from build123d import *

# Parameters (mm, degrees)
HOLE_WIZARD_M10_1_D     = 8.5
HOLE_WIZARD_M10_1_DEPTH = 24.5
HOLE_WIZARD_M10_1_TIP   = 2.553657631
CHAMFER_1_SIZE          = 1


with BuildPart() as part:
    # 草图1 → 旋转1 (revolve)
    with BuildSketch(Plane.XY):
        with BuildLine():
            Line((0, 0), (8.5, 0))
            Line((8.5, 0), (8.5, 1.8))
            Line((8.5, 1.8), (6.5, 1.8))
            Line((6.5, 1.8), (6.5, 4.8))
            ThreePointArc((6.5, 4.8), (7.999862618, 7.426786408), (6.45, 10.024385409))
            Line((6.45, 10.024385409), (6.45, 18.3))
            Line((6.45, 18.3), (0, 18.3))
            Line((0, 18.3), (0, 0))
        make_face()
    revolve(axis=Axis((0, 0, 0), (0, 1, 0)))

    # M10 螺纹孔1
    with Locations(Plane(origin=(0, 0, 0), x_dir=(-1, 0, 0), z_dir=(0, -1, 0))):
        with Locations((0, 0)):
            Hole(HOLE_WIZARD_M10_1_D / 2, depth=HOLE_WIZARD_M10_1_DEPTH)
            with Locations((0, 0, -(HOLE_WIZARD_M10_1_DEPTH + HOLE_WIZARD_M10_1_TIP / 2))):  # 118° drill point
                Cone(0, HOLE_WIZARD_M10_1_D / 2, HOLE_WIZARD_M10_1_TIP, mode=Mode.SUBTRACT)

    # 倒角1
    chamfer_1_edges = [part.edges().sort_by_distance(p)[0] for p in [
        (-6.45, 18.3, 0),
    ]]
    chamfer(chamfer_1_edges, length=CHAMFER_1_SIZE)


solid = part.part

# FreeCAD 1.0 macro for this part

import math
import FreeCAD as App
import Part
import Sketcher


def edges_at(feature, points):
    """Names of the edges that pass closest to the given points."""
    edges = feature.Shape.Edges
    near = lambda p: min(range(len(edges)), key=lambda i: edges[i].distToShape(Part.Vertex(*p))[0])
    return sorted({f"Edge{near(p) + 1}" for p in points})

doc = App.newDocument("Part")
params = doc.addObject("Spreadsheet::Sheet", "Params")
for row, (alias, value) in enumerate([
    ("sketch1_radius", "3 mm"),
    ("sketch1_width", "2 mm"),
    ("sketch1_height", "3 mm"),
    ("sketch1_width2", "8.5 mm"),
    ("sketch1_height2", "1.8 mm"),
    ("revolution_angle", "360 deg"),
    ("sketch2_diameter", "8.5 mm"),
    ("hole_diameter", "8.5 mm"),
    ("hole_depth", "24.5 mm"),
    ("chamfer_size", "1 mm"),
], start=1):
    params.set(f"A{row}", alias)
    params.set(f"B{row}", "=" + value)
    params.setAlias(f"B{row}", alias)

body = doc.addObject("PartDesign::Body", "Body")

sketch1 = body.newObject("Sketcher::SketchObject", "Sketch")
sketch1.AttachmentSupport = (doc.getObject("XY_Plane"), [""])
sketch1.MapMode = "FlatFace"
sketch1.addGeometry(Part.LineSegment(App.Vector(0, 0, 0), App.Vector(8.5, 0, 0)), False)
sketch1.addGeometry(Part.LineSegment(App.Vector(8.5, 0, 0), App.Vector(8.5, 1.8, 0)), False)
sketch1.addGeometry(Part.LineSegment(App.Vector(8.5, 1.8, 0), App.Vector(6.5, 1.8, 0)), False)
sketch1.addGeometry(Part.LineSegment(App.Vector(6.5, 1.8, 0), App.Vector(6.5, 4.8, 0)), False)
sketch1.addGeometry(Part.ArcOfCircle(Part.Circle(App.Vector(5, 7.398076, 0), App.Vector(0, 0, 1), 3), math.radians(-60), math.radians(61.096665)), False)
sketch1.addGeometry(Part.LineSegment(App.Vector(6.45, 10.024385, 0), App.Vector(6.45, 18.3, 0)), False)
sketch1.addGeometry(Part.LineSegment(App.Vector(6.45, 18.3, 0), App.Vector(0, 18.3, 0)), False)
sketch1.addGeometry(Part.LineSegment(App.Vector(0, 18.3, 0), App.Vector(0, 0, 0)), False)
sketch1.addConstraint(Sketcher.Constraint("Coincident", 0, 2, 1, 1))
sketch1.addConstraint(Sketcher.Constraint("Coincident", 1, 2, 2, 1))
sketch1.addConstraint(Sketcher.Constraint("Coincident", 2, 2, 3, 1))
sketch1.addConstraint(Sketcher.Constraint("Coincident", 3, 2, 4, 1))
sketch1.addConstraint(Sketcher.Constraint("Coincident", 4, 2, 5, 1))
sketch1.addConstraint(Sketcher.Constraint("Coincident", 5, 2, 6, 1))
sketch1.addConstraint(Sketcher.Constraint("Coincident", 6, 2, 7, 1))
sketch1.addConstraint(Sketcher.Constraint("Coincident", 7, 2, 0, 1))
sketch1.addConstraint(Sketcher.Constraint("Horizontal", 0))
sketch1.addConstraint(Sketcher.Constraint("Vertical", 1))
sketch1.addConstraint(Sketcher.Constraint("Horizontal", 2))
sketch1.addConstraint(Sketcher.Constraint("Vertical", 3))
sketch1.addConstraint(Sketcher.Constraint("Vertical", 5))
sketch1.addConstraint(Sketcher.Constraint("Horizontal", 6))
sketch1.addConstraint(Sketcher.Constraint("Vertical", 7))
sketch1.addConstraint(Sketcher.Constraint("Coincident", 7, 2, -1, 1))
sketch1.addConstraint(Sketcher.Constraint("Radius", 4, 3.0))
sketch1.addConstraint(Sketcher.Constraint("DistanceX", 2, 2, 2, 1, 2.0))
sketch1.addConstraint(Sketcher.Constraint("DistanceY", 3, 1, 3, 2, 3.0))
sketch1.addConstraint(Sketcher.Constraint("DistanceX", 0, 1, 0, 2, 8.5))
sketch1.addConstraint(Sketcher.Constraint("DistanceY", 1, 1, 1, 2, 1.8))
sketch1.addConstraint(Sketcher.Constraint("DistanceY", 7, 2, 7, 1, 18.3))
sketch1.addConstraint(Sketcher.Constraint("DistanceX", -1, 1, 4, 3, 5.0))
sketch1.addConstraint(Sketcher.Constraint("DistanceX", 6, 2, 6, 1, 6.45))
sketch1.setExpression("Constraints[16]", "Params.sketch1_radius")
sketch1.setExpression("Constraints[17]", "Params.sketch1_width")
sketch1.setExpression("Constraints[18]", "Params.sketch1_height")
sketch1.setExpression("Constraints[19]", "Params.sketch1_width2")
sketch1.setExpression("Constraints[20]", "Params.sketch1_height2")
revolution = body.newObject("PartDesign::Revolution", "Revolution")
revolution.Profile = sketch1
revolution.ReferenceAxis = (sketch1, ["V_Axis"])
revolution.setExpression("Angle", "Params.revolution_angle")

sketch2 = body.newObject("Sketcher::SketchObject", "Sketch001")
sketch2.AttachmentSupport = (doc.getObject("XZ_Plane"), [""])
sketch2.MapMode = "FlatFace"
sketch2.addGeometry(Part.Circle(App.Vector(0, 0, 0), App.Vector(0, 0, 1), 4.25), False)
sketch2.addConstraint(Sketcher.Constraint("Coincident", 0, 3, -1, 1))
sketch2.addConstraint(Sketcher.Constraint("Diameter", 0, 8.5))
sketch2.setExpression("Constraints[1]", "Params.sketch2_diameter")
doc.recompute()
hole = body.newObject("PartDesign::Hole", "Hole")
hole.Profile = sketch2
hole.ThreadType = "None"
hole.setExpression("Diameter", "Params.hole_diameter")
hole.DepthType = "Dimension"
hole.setExpression("Depth", "Params.hole_depth")
hole.DrillPoint = "Angled"
hole.DrillPointAngle = 118
doc.recompute()

chamfer = body.newObject("PartDesign::Chamfer", "Chamfer")
chamfer.Base = (hole, edges_at(hole, [(-6.45, 18.3, 0)]))
chamfer.setExpression("Size", "Params.chamfer_size")

doc.recompute()
